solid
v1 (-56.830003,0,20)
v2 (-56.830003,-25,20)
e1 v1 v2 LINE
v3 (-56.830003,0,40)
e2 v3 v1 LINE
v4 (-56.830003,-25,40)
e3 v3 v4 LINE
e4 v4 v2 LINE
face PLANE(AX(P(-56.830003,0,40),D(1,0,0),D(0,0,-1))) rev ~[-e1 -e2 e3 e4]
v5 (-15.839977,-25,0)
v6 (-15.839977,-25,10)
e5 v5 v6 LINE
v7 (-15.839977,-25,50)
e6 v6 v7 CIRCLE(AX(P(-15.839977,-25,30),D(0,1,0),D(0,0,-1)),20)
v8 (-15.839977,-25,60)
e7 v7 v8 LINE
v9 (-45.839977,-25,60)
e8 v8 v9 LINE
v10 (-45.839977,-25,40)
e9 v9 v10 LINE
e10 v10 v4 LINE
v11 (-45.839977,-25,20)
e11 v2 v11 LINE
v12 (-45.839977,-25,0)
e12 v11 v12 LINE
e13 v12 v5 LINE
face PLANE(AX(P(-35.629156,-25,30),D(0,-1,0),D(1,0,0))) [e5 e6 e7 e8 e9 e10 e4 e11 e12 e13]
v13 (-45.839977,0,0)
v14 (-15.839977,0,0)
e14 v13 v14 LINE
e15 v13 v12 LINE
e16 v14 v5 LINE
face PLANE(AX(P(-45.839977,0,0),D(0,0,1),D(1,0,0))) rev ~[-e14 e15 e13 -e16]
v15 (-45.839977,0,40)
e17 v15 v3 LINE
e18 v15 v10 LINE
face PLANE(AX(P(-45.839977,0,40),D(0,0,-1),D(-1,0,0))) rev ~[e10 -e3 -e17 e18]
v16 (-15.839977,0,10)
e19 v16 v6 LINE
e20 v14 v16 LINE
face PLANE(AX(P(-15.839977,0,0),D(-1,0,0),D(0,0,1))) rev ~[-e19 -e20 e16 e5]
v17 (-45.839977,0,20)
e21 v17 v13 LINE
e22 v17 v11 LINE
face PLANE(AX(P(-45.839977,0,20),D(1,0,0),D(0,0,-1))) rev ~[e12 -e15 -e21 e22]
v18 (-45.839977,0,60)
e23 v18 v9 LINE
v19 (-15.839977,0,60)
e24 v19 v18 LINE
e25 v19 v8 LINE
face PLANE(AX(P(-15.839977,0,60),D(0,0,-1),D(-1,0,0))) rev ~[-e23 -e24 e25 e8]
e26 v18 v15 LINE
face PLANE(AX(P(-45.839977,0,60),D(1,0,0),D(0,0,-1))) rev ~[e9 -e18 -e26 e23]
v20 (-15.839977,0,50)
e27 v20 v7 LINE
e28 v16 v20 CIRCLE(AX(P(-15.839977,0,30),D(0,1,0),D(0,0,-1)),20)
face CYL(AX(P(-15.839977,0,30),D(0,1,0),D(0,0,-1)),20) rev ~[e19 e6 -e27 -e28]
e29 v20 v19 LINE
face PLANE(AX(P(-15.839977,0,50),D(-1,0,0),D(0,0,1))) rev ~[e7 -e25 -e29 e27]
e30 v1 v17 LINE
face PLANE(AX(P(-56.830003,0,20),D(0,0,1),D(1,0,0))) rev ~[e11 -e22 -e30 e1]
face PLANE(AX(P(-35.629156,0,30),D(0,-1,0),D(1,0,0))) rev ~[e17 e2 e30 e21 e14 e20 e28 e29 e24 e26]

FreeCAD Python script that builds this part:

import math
import FreeCAD as App
import Part
import Sketcher
from FreeCAD import Vector

doc = App.newDocument("Part")
body = doc.addObject("PartDesign::Body", "Body")

sketch1 = body.newObject("Sketcher::SketchObject", "Sketch")
sketch1.AttachmentSupport = (doc.getObject("XZ_Plane"), [""])
sketch1.MapMode = "FlatFace"
sketch1.addGeometry([
    Part.LineSegment(Vector(-15.839977, 60, 0), Vector(-45.839977, 60, 0)),
    Part.LineSegment(Vector(-45.839977, 60, 0), Vector(-45.839977, 40, 0)),
    Part.LineSegment(Vector(-45.839977, 40, 0), Vector(-56.830003, 40, 0)),
    Part.LineSegment(Vector(-56.830003, 40, 0), Vector(-56.830003, 20, 0)),
    Part.LineSegment(Vector(-56.830003, 20, 0), Vector(-45.839977, 20, 0)),
    Part.LineSegment(Vector(-45.839977, 20, 0), Vector(-45.839977, 0, 0)),
    Part.LineSegment(Vector(-45.839977, 0, 0), Vector(-15.839977, 0, 0)),
    Part.LineSegment(Vector(-15.839977, 0, 0), Vector(-15.839977, 10, 0)),
    Part.ArcOfCircle(Part.Circle(Vector(-15.839977, 30, 0), Vector(0, 0, 1), 20), math.radians(90), math.radians(270)),
    Part.LineSegment(Vector(-15.839977, 50, 0), Vector(-15.839977, 60, 0)),
], False)
sketch1.addConstraint([
    Sketcher.Constraint("Coincident", 0, 2, 1, 1),
    Sketcher.Constraint("Coincident", 1, 2, 2, 1),
    Sketcher.Constraint("Coincident", 2, 2, 3, 1),
    Sketcher.Constraint("Coincident", 3, 2, 4, 1),
    Sketcher.Constraint("Coincident", 4, 2, 5, 1),
    Sketcher.Constraint("Coincident", 5, 2, 6, 1),
    Sketcher.Constraint("Coincident", 6, 2, 7, 1),
    Sketcher.Constraint("Coincident", 7, 2, 8, 2),
    Sketcher.Constraint("Coincident", 8, 1, 9, 1),
    Sketcher.Constraint("Coincident", 9, 2, 0, 1),
    Sketcher.Constraint("Horizontal", 0),
    Sketcher.Constraint("Vertical", 1),
    Sketcher.Constraint("Horizontal", 2),
    Sketcher.Constraint("Vertical", 3),
    Sketcher.Constraint("Horizontal", 4),
    Sketcher.Constraint("Vertical", 5),
    Sketcher.Constraint("Horizontal", 6),
    Sketcher.Constraint("Vertical", 7),
    Sketcher.Constraint("Vertical", 9),
    Sketcher.Constraint("PointOnObject", 5, 2, -1),
    Sketcher.Constraint("Vertical", 1, 2, 4, 2),
    Sketcher.Constraint("Vertical", 8, 3, 6, 2),
    Sketcher.Constraint("Vertical", 7, 2, 8, 1),
    Sketcher.Constraint("Equal", 1, 3),
    Sketcher.Constraint("Equal", 3, 5),
    Sketcher.Constraint("Equal", 7, 9),
    Sketcher.Constraint("Radius", 8, 20.0),
    Sketcher.Constraint("DistanceX", 0, 2, 0, 1, 30.0),
    Sketcher.Constraint("DistanceY", 1, 2, 1, 1, 20.0),
    Sketcher.Constraint("DistanceX", 2, 2, 2, 1, 10.990026),
    Sketcher.Constraint("DistanceX", 8, 3, -1, 1, 15.839977),
])
pad1 = body.newObject("PartDesign::Pad", "Pad")
pad1.Profile = sketch1
pad1.Length = 25

doc.recompute()
